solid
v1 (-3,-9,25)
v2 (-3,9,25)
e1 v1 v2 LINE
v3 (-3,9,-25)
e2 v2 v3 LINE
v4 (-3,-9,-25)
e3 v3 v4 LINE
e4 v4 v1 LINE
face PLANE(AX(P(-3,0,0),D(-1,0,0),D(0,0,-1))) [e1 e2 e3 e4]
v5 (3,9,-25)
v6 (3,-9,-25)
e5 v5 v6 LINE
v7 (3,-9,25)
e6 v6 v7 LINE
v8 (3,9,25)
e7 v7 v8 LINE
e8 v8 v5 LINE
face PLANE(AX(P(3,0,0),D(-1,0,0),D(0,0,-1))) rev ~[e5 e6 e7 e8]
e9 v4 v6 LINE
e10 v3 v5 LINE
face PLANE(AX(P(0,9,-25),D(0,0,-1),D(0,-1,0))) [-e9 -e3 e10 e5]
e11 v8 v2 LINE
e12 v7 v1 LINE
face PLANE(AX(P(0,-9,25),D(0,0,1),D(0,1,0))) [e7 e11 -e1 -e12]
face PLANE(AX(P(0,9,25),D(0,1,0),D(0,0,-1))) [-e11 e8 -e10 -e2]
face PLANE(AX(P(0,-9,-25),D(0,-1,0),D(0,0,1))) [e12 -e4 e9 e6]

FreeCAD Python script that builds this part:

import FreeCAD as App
import Part
import Sketcher
Q = App.Units.Quantity

doc = App.newDocument("Part")
body = doc.addObject("PartDesign::Body", "Body")

# Sketch on YZ plane
sketch1 = body.newObject("Sketcher::SketchObject", "Sketch")
sketch1.AttachmentSupport = (doc.getObject("YZ_Plane"), [""])
sketch1.MapMode = "FlatFace"
sketch1.addGeometry([
    Part.LineSegment(App.Vector(-9, 25, 0), App.Vector(-9, -25, 0)),
    Part.LineSegment(App.Vector(-9, -25, 0), App.Vector(9, -25, 0)),
    Part.LineSegment(App.Vector(9, -25, 0), App.Vector(9, 25, 0)),
    Part.LineSegment(App.Vector(9, 25, 0), App.Vector(-9, 25, 0)),
], False)
sketch1.addConstraint([
    Sketcher.Constraint("Coincident", 0, 2, 1, 1),
    Sketcher.Constraint("Coincident", 1, 2, 2, 1),
    Sketcher.Constraint("Coincident", 2, 2, 3, 1),
    Sketcher.Constraint("Coincident", 3, 2, 0, 1),
    Sketcher.Constraint("Vertical", 0),
    Sketcher.Constraint("Horizontal", 1),
    Sketcher.Constraint("Vertical", 2),
    Sketcher.Constraint("Horizontal", 3),
    Sketcher.Constraint("Symmetric", 0, 2, 2, 2, -1, 1),
    Sketcher.Constraint("DistanceX", 1, 1, 1, 2, Q("18 mm")),
    Sketcher.Constraint("DistanceY", 0, 2, 0, 1, Q("50 mm")),
])
pad1 = body.newObject("PartDesign::Pad", "Pad")
pad1.Profile = sketch1
pad1.Length = 6
pad1.Midplane = True

doc.recompute()
